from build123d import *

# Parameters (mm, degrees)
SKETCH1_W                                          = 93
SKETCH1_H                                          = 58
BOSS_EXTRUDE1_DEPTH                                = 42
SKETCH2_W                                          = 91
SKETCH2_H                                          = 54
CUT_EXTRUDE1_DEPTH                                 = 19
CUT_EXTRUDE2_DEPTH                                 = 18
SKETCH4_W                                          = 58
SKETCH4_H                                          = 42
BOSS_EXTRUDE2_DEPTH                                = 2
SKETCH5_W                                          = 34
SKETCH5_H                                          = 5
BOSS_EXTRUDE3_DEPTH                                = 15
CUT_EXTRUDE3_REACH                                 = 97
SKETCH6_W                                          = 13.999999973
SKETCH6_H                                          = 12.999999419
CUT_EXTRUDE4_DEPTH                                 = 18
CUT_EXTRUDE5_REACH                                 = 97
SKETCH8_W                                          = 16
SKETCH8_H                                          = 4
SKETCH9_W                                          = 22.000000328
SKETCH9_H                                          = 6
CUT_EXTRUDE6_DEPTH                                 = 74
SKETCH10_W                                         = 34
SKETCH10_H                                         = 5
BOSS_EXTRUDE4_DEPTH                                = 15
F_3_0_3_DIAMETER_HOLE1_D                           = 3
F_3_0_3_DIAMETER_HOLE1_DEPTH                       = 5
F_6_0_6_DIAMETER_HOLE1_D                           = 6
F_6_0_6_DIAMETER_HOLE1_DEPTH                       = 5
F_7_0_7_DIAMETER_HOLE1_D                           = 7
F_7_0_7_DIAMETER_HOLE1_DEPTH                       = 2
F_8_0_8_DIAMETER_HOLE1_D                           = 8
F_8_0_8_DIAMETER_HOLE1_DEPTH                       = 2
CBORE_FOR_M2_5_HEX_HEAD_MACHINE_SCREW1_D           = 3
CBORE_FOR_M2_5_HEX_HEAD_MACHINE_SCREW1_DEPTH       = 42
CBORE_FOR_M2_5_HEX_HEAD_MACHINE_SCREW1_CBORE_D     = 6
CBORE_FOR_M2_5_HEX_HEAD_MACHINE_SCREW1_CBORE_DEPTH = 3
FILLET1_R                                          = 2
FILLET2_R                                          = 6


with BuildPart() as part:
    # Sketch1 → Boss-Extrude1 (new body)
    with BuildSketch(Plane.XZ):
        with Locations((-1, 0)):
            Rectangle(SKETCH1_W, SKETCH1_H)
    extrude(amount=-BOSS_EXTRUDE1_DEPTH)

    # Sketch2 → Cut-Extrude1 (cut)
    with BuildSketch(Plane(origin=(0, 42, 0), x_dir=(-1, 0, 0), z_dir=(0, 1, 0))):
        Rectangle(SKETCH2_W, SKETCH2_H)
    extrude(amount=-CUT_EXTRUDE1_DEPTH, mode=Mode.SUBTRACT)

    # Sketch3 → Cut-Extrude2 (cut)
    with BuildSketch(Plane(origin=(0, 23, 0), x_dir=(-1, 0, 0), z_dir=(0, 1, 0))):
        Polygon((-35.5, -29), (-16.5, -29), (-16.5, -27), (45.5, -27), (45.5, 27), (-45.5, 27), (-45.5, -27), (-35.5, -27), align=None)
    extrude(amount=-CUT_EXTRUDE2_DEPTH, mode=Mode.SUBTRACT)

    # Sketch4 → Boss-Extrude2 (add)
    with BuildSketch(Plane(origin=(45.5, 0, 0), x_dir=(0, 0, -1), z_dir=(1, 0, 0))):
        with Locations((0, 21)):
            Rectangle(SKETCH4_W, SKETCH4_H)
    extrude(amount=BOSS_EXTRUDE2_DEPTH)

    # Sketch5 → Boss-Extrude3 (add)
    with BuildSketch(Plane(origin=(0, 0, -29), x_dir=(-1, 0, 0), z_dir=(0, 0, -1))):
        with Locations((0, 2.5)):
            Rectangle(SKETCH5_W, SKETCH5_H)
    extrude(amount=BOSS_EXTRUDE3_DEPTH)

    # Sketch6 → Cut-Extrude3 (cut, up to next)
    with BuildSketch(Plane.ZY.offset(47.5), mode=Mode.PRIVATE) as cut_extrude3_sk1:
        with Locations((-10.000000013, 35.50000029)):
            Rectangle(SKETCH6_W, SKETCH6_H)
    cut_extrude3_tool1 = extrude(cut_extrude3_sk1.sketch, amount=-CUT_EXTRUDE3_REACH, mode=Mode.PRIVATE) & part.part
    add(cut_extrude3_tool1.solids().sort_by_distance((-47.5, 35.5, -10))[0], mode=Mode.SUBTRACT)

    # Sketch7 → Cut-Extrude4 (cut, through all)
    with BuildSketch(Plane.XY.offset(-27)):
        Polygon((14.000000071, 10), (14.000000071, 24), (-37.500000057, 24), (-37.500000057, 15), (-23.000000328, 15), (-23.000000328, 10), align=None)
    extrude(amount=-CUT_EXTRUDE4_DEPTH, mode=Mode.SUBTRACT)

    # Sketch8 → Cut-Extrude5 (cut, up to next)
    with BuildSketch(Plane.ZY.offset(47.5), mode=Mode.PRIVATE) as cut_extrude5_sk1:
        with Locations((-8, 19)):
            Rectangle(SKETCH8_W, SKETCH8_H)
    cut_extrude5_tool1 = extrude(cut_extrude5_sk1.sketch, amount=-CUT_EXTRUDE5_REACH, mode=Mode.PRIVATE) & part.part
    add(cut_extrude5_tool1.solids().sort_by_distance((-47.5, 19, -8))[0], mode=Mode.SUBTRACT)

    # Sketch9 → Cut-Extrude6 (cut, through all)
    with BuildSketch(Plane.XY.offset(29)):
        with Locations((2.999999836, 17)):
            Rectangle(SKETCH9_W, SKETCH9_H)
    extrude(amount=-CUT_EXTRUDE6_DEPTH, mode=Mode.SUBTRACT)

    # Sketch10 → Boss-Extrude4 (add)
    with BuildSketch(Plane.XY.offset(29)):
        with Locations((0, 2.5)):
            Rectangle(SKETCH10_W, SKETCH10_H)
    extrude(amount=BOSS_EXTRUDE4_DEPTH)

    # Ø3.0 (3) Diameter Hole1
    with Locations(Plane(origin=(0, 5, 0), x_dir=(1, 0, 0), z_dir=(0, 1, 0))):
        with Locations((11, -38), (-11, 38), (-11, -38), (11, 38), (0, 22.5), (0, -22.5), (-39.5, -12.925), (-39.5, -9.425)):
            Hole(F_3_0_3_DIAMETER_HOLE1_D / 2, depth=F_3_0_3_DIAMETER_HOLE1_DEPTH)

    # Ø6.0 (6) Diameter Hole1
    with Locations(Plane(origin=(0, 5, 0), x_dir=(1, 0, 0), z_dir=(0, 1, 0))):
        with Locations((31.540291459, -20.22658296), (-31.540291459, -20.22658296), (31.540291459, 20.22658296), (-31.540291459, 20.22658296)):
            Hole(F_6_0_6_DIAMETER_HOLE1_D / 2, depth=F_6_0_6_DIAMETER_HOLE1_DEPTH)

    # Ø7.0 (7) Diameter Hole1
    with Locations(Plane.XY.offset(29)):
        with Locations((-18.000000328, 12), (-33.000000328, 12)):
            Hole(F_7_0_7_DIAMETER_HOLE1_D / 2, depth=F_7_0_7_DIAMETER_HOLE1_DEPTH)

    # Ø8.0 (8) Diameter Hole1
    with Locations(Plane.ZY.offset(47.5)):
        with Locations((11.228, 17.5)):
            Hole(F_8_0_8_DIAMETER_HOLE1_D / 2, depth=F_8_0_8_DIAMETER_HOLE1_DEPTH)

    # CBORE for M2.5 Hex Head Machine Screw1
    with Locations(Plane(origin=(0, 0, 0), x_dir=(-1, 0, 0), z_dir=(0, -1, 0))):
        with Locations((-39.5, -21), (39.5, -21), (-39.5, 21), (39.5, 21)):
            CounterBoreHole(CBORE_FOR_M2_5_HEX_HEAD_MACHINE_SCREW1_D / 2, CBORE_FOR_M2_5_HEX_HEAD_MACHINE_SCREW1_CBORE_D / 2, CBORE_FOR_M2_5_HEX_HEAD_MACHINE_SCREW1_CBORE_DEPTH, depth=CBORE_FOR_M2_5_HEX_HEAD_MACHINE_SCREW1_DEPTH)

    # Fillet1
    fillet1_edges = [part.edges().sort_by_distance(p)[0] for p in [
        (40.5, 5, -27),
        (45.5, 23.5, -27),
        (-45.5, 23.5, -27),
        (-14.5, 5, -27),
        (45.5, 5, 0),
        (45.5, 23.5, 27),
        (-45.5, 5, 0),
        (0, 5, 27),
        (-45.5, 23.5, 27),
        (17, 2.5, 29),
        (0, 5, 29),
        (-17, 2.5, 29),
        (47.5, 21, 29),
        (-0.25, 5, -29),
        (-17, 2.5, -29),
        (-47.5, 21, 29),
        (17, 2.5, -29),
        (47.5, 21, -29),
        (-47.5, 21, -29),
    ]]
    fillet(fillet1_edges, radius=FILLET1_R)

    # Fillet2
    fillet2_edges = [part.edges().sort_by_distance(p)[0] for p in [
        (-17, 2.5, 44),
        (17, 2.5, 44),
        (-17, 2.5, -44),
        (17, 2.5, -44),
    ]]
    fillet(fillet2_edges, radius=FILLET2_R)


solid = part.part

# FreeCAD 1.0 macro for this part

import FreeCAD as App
import Part
import Sketcher

V = App.Vector
Q = App.Units.Quantity


def edges_at(feature, points):
    """Names of the edges that pass closest to the given points."""
    edges = feature.Shape.Edges
    near = lambda p: min(range(len(edges)), key=lambda i: edges[i].distToShape(Part.Vertex(*p))[0])
    return sorted({f"Edge{near(p) + 1}" for p in points})

doc = App.newDocument("Part")
params = doc.addObject("Spreadsheet::Sheet", "Params")
for row, (alias, value) in enumerate([
    ("sketch1_width", "93 mm"),
    ("sketch1_height", "58 mm"),
    ("pad1_length", "42 mm"),
    ("sketch2_width", "91 mm"),
    ("sketch2_height", "54 mm"),
    ("pocket1_length", "19 mm"),
    ("sketch3_width", "19 mm"),
    ("sketch3_width2", "62 mm"),
    ("sketch3_width3", "91 mm"),
    ("sketch3_height", "2 mm"),
    ("sketch3_height2", "54 mm"),
    ("pocket2_length", "18 mm"),
    ("sketch4_width", "42 mm"),
    ("sketch4_height", "58 mm"),
    ("pad2_length", "2 mm"),
    ("sketch5_width", "34 mm"),
    ("sketch5_height", "5 mm"),
    ("pad3_length", "15 mm"),
    ("sketch6_width", "12.999999 mm"),
    ("sketch6_height", "14 mm"),
    ("sketch7_width", "37 mm"),
    ("sketch7_height", "14 mm"),
    ("sketch7_height2", "9 mm"),
    ("sketch7_width2", "51.5 mm"),
    ("sketch8_width", "4 mm"),
    ("sketch8_height", "16 mm"),
    ("sketch9_width", "22 mm"),
    ("sketch9_height", "6 mm"),
    ("sketch10_width", "34 mm"),
    ("sketch10_height", "5 mm"),
    ("pad4_length", "15 mm"),
    ("sketch11_diameter", "3 mm"),
    ("hole_diameter", "3 mm"),
    ("hole_depth", "5 mm"),
    ("sketch12_diameter", "6 mm"),
    ("hole2_diameter", "6 mm"),
    ("hole2_depth", "5 mm"),
    ("sketch13_diameter", "7 mm"),
    ("hole3_diameter", "7 mm"),
    ("hole3_depth", "2 mm"),
    ("sketch14_diameter", "8 mm"),
    ("hole4_diameter", "8 mm"),
    ("hole4_depth", "2 mm"),
    ("sketch15_diameter", "3 mm"),
    ("hole5_diameter", "3 mm"),
    ("hole5_depth", "42 mm"),
    ("hole5_cbore_diameter", "6 mm"),
    ("hole5_cbore_depth", "3 mm"),
    ("fillet_radius", "2 mm"),
    ("fillet2_radius", "6 mm"),
], start=1):
    params.set(f"A{row}", alias)
    params.set(f"B{row}", "=" + value)
    params.setAlias(f"B{row}", alias)

body = doc.addObject("PartDesign::Body", "Body")

sketch1 = body.newObject("Sketcher::SketchObject", "Sketch")
sketch1.AttachmentSupport = (doc.getObject("XZ_Plane"), [""])
sketch1.MapMode = "FlatFace"
sketch1.addGeometry(Part.LineSegment(V(-48, 29, 0), V(-48, -29, 0)), False)
sketch1.addGeometry(Part.LineSegment(V(-48, -29, 0), V(46, -29, 0)), False)
sketch1.addGeometry(Part.LineSegment(V(46, -29, 0), V(46, 29, 0)), False)
sketch1.addGeometry(Part.LineSegment(V(46, 29, 0), V(-48, 29, 0)), False)
sketch1.addConstraint(Sketcher.Constraint("Coincident", 0, 2, 1, 1))
sketch1.addConstraint(Sketcher.Constraint("Coincident", 1, 2, 2, 1))
sketch1.addConstraint(Sketcher.Constraint("Coincident", 2, 2, 3, 1))
sketch1.addConstraint(Sketcher.Constraint("Coincident", 3, 2, 0, 1))
sketch1.addConstraint(Sketcher.Constraint("Vertical", 0))
sketch1.addConstraint(Sketcher.Constraint("Horizontal", 1))
sketch1.addConstraint(Sketcher.Constraint("Vertical", 2))
sketch1.addConstraint(Sketcher.Constraint("Horizontal", 3))
sketch1.addConstraint(Sketcher.Constraint("DistanceX", 1, 1, 1, 2, Q("93 mm")))
sketch1.addConstraint(Sketcher.Constraint("DistanceY", 0, 2, 0, 1, Q("58 mm")))
sketch1.addConstraint(Sketcher.Constraint("DistanceY", 0, 2, -1, 1, Q("29 mm")))
sketch1.addConstraint(Sketcher.Constraint("DistanceX", 0, 2, -1, 1, Q("47.5 mm")))
sketch1.setExpression("Constraints[8]", "Params.sketch1_width")
sketch1.setExpression("Constraints[9]", "Params.sketch1_height")
pad1 = body.newObject("PartDesign::Pad", "Pad")
pad1.Profile = sketch1
pad1.setExpression("Length", "Params.pad1_length")
pad1.Reversed = True

sketch2 = body.newObject("Sketcher::SketchObject", "Sketch001")
sketch2.AttachmentSupport = (doc.getObject("XZ_Plane"), [""])
sketch2.MapMode = "FlatFace"
sketch2.AttachmentOffset = App.Placement(V(0, 0, -42), App.Rotation())
sketch2.addGeometry(Part.LineSegment(V(46, 27, 0), V(46, -27, 0)), False)
sketch2.addGeometry(Part.LineSegment(V(46, -27, 0), V(-46, -27, 0)), False)
sketch2.addGeometry(Part.LineSegment(V(-46, -27, 0), V(-46, 27, 0)), False)
sketch2.addGeometry(Part.LineSegment(V(-46, 27, 0), V(46, 27, 0)), False)
sketch2.addConstraint(Sketcher.Constraint("Coincident", 0, 2, 1, 1))
sketch2.addConstraint(Sketcher.Constraint("Coincident", 1, 2, 2, 1))
sketch2.addConstraint(Sketcher.Constraint("Coincident", 2, 2, 3, 1))
sketch2.addConstraint(Sketcher.Constraint("Coincident", 3, 2, 0, 1))
sketch2.addConstraint(Sketcher.Constraint("Vertical", 0))
sketch2.addConstraint(Sketcher.Constraint("Horizontal", 1))
sketch2.addConstraint(Sketcher.Constraint("Vertical", 2))
sketch2.addConstraint(Sketcher.Constraint("Horizontal", 3))
sketch2.addConstraint(Sketcher.Constraint("Symmetric", 0, 2, 2, 2, -1, 1))
sketch2.addConstraint(Sketcher.Constraint("DistanceX", 1, 2, 1, 1, Q("91 mm")))
sketch2.addConstraint(Sketcher.Constraint("DistanceY", 0, 2, 0, 1, Q("54 mm")))
sketch2.setExpression("Constraints[9]", "Params.sketch2_width")
sketch2.setExpression("Constraints[10]", "Params.sketch2_height")
pocket1 = body.newObject("PartDesign::Pocket", "Pocket")
pocket1.Profile = sketch2
pocket1.setExpression("Length", "Params.pocket1_length")
pocket1.Reversed = True

sketch3 = body.newObject("Sketcher::SketchObject", "Sketch002")
sketch3.AttachmentSupport = (doc.getObject("XZ_Plane"), [""])
sketch3.MapMode = "FlatFace"
sketch3.AttachmentOffset = App.Placement(V(0, 0, -23), App.Rotation())
sketch3.addGeometry(Part.LineSegment(V(35.5, -29, 0), V(16.5, -29, 0)), False)
sketch3.addGeometry(Part.LineSegment(V(16.5, -29, 0), V(16.5, -27, 0)), False)
sketch3.addGeometry(Part.LineSegment(V(16.5, -27, 0), V(-45.5, -27, 0)), False)
sketch3.addGeometry(Part.LineSegment(V(-45.5, -27, 0), V(-45.5, 27, 0)), False)
sketch3.addGeometry(Part.LineSegment(V(-45.5, 27, 0), V(45.5, 27, 0)), False)
sketch3.addGeometry(Part.LineSegment(V(45.5, 27, 0), V(45.5, -27, 0)), False)
sketch3.addGeometry(Part.LineSegment(V(45.5, -27, 0), V(35.5, -27, 0)), False)
sketch3.addGeometry(Part.LineSegment(V(35.5, -27, 0), V(35.5, -29, 0)), False)
sketch3.addConstraint(Sketcher.Constraint("Coincident", 0, 2, 1, 1))
sketch3.addConstraint(Sketcher.Constraint("Coincident", 1, 2, 2, 1))
sketch3.addConstraint(Sketcher.Constraint("Coincident", 2, 2, 3, 1))
sketch3.addConstraint(Sketcher.Constraint("Coincident", 3, 2, 4, 1))
sketch3.addConstraint(Sketcher.Constraint("Coincident", 4, 2, 5, 1))
sketch3.addConstraint(Sketcher.Constraint("Coincident", 5, 2, 6, 1))
sketch3.addConstraint(Sketcher.Constraint("Coincident", 6, 2, 7, 1))
sketch3.addConstraint(Sketcher.Constraint("Coincident", 7, 2, 0, 1))
sketch3.addConstraint(Sketcher.Constraint("Horizontal", 0))
sketch3.addConstraint(Sketcher.Constraint("Vertical", 1))
sketch3.addConstraint(Sketcher.Constraint("Horizontal", 2))
sketch3.addConstraint(Sketcher.Constraint("Vertical", 3))
sketch3.addConstraint(Sketcher.Constraint("Horizontal", 4))
sketch3.addConstraint(Sketcher.Constraint("Vertical", 5))
sketch3.addConstraint(Sketcher.Constraint("Horizontal", 6))
sketch3.addConstraint(Sketcher.Constraint("Vertical", 7))
sketch3.addConstraint(Sketcher.Constraint("Symmetric", 2, 2, 4, 2, -1, 1))
sketch3.addConstraint(Sketcher.Constraint("Horizontal", 2, 2, 5, 2))
sketch3.addConstraint(Sketcher.Constraint("DistanceX", 0, 2, 0, 1, Q("19 mm")))
sketch3.addConstraint(Sketcher.Constraint("DistanceX", 2, 2, 2, 1, Q("62 mm")))
sketch3.addConstraint(Sketcher.Constraint("DistanceX", 4, 1, 4, 2, Q("91 mm")))
sketch3.addConstraint(Sketcher.Constraint("DistanceY", 1, 1, 1, 2, Q("2 mm")))
sketch3.addConstraint(Sketcher.Constraint("DistanceY", 3, 1, 3, 2, Q("54 mm")))
sketch3.setExpression("Constraints[18]", "Params.sketch3_width")
sketch3.setExpression("Constraints[19]", "Params.sketch3_width2")
sketch3.setExpression("Constraints[20]", "Params.sketch3_width3")
sketch3.setExpression("Constraints[21]", "Params.sketch3_height")
sketch3.setExpression("Constraints[22]", "Params.sketch3_height2")
pocket2 = body.newObject("PartDesign::Pocket", "Pocket001")
pocket2.Profile = sketch3
pocket2.setExpression("Length", "Params.pocket2_length")
pocket2.Reversed = True

sketch4 = body.newObject("Sketcher::SketchObject", "Sketch003")
sketch4.AttachmentSupport = (doc.getObject("YZ_Plane"), [""])
sketch4.MapMode = "FlatFace"
sketch4.AttachmentOffset = App.Placement(V(0, 0, 45.5), App.Rotation())
sketch4.addGeometry(Part.LineSegment(V(42, 29, 0), V(0, 29, 0)), False)
sketch4.addGeometry(Part.LineSegment(V(0, 29, 0), V(0, -29, 0)), False)
sketch4.addGeometry(Part.LineSegment(V(0, -29, 0), V(42, -29, 0)), False)
sketch4.addGeometry(Part.LineSegment(V(42, -29, 0), V(42, 29, 0)), False)
sketch4.addConstraint(Sketcher.Constraint("Coincident", 0, 2, 1, 1))
sketch4.addConstraint(Sketcher.Constraint("Coincident", 1, 2, 2, 1))
sketch4.addConstraint(Sketcher.Constraint("Coincident", 2, 2, 3, 1))
sketch4.addConstraint(Sketcher.Constraint("Coincident", 3, 2, 0, 1))
sketch4.addConstraint(Sketcher.Constraint("Horizontal", 0))
sketch4.addConstraint(Sketcher.Constraint("Vertical", 1))
sketch4.addConstraint(Sketcher.Constraint("Horizontal", 2))
sketch4.addConstraint(Sketcher.Constraint("Vertical", 3))
sketch4.addConstraint(Sketcher.Constraint("Symmetric", 0, 2, 1, 2, -1, 1))
sketch4.addConstraint(Sketcher.Constraint("DistanceX", 0, 2, 0, 1, Q("42 mm")))
sketch4.addConstraint(Sketcher.Constraint("DistanceY", 1, 2, 1, 1, Q("58 mm")))
sketch4.setExpression("Constraints[9]", "Params.sketch4_width")
sketch4.setExpression("Constraints[10]", "Params.sketch4_height")
pad2 = body.newObject("PartDesign::Pad", "Pad001")
pad2.Profile = sketch4
pad2.setExpression("Length", "Params.pad2_length")

sketch5 = body.newObject("Sketcher::SketchObject", "Sketch004")
sketch5.AttachmentSupport = (doc.getObject("XY_Plane"), [""])
sketch5.MapMode = "FlatFace"
sketch5.AttachmentOffset = App.Placement(V(0, 0, -29), App.Rotation())
sketch5.addGeometry(Part.LineSegment(V(17, 5, 0), V(17, 0, 0)), False)
sketch5.addGeometry(Part.LineSegment(V(17, 0, 0), V(-17, 0, 0)), False)
sketch5.addGeometry(Part.LineSegment(V(-17, 0, 0), V(-17, 5, 0)), False)
sketch5.addGeometry(Part.LineSegment(V(-17, 5, 0), V(17, 5, 0)), False)
sketch5.addConstraint(Sketcher.Constraint("Coincident", 0, 2, 1, 1))
sketch5.addConstraint(Sketcher.Constraint("Coincident", 1, 2, 2, 1))
sketch5.addConstraint(Sketcher.Constraint("Coincident", 2, 2, 3, 1))
sketch5.addConstraint(Sketcher.Constraint("Coincident", 3, 2, 0, 1))
sketch5.addConstraint(Sketcher.Constraint("Vertical", 0))
sketch5.addConstraint(Sketcher.Constraint("Horizontal", 1))
sketch5.addConstraint(Sketcher.Constraint("Vertical", 2))
sketch5.addConstraint(Sketcher.Constraint("Horizontal", 3))
sketch5.addConstraint(Sketcher.Constraint("Symmetric", 0, 2, 1, 2, -1, 1))
sketch5.addConstraint(Sketcher.Constraint("DistanceX", 1, 2, 1, 1, Q("34 mm")))
sketch5.addConstraint(Sketcher.Constraint("DistanceY", 0, 2, 0, 1, Q("5 mm")))
sketch5.setExpression("Constraints[9]", "Params.sketch5_width")
sketch5.setExpression("Constraints[10]", "Params.sketch5_height")
pad3 = body.newObject("PartDesign::Pad", "Pad002")
pad3.Profile = sketch5
pad3.setExpression("Length", "Params.pad3_length")
pad3.Reversed = True

sketch6 = body.newObject("Sketcher::SketchObject", "Sketch005")
sketch6.AttachmentSupport = (doc.getObject("YZ_Plane"), [""])
sketch6.MapMode = "FlatFace"
sketch6.AttachmentOffset = App.Placement(V(0, 0, -47.5), App.Rotation())
sketch6.addGeometry(Part.LineSegment(V(42, -17, 0), V(29, -17, 0)), False)
sketch6.addGeometry(Part.LineSegment(V(29, -17, 0), V(29, -3, 0)), False)
sketch6.addGeometry(Part.LineSegment(V(29, -3, 0), V(42, -3, 0)), False)
sketch6.addGeometry(Part.LineSegment(V(42, -3, 0), V(42, -17, 0)), False)
sketch6.addConstraint(Sketcher.Constraint("Coincident", 0, 2, 1, 1))
sketch6.addConstraint(Sketcher.Constraint("Coincident", 1, 2, 2, 1))
sketch6.addConstraint(Sketcher.Constraint("Coincident", 2, 2, 3, 1))
sketch6.addConstraint(Sketcher.Constraint("Coincident", 3, 2, 0, 1))
sketch6.addConstraint(Sketcher.Constraint("Horizontal", 0))
sketch6.addConstraint(Sketcher.Constraint("Vertical", 1))
sketch6.addConstraint(Sketcher.Constraint("Horizontal", 2))
sketch6.addConstraint(Sketcher.Constraint("Vertical", 3))
sketch6.addConstraint(Sketcher.Constraint("DistanceX", 0, 2, 0, 1, Q("12.999999 mm")))
sketch6.addConstraint(Sketcher.Constraint("DistanceY", 1, 1, 1, 2, Q("14 mm")))
sketch6.addConstraint(Sketcher.Constraint("DistanceX", -1, 1, 0, 2, Q("29.000001 mm")))
sketch6.addConstraint(Sketcher.Constraint("DistanceY", 0, 2, -1, 1, Q("17 mm")))
sketch6.setExpression("Constraints[8]", "Params.sketch6_width")
sketch6.setExpression("Constraints[9]", "Params.sketch6_height")
pocket3 = body.newObject("PartDesign::Pocket", "Pocket002")
pocket3.Profile = sketch6
pocket3.Type = "UpToFirst"
pocket3.Reversed = True

sketch7 = body.newObject("Sketcher::SketchObject", "Sketch006")
sketch7.AttachmentSupport = (doc.getObject("XY_Plane"), [""])
sketch7.MapMode = "FlatFace"
sketch7.AttachmentOffset = App.Placement(V(0, 0, -27), App.Rotation())
sketch7.addGeometry(Part.LineSegment(V(14, 10, 0), V(14, 24, 0)), False)
sketch7.addGeometry(Part.LineSegment(V(14, 24, 0), V(-38, 24, 0)), False)
sketch7.addGeometry(Part.LineSegment(V(-38, 24, 0), V(-38, 15, 0)), False)
sketch7.addGeometry(Part.LineSegment(V(-38, 15, 0), V(-23, 15, 0)), False)
sketch7.addGeometry(Part.LineSegment(V(-23, 15, 0), V(-23, 10, 0)), False)
sketch7.addGeometry(Part.LineSegment(V(-23, 10, 0), V(14, 10, 0)), False)
sketch7.addConstraint(Sketcher.Constraint("Coincident", 0, 2, 1, 1))
sketch7.addConstraint(Sketcher.Constraint("Coincident", 1, 2, 2, 1))
sketch7.addConstraint(Sketcher.Constraint("Coincident", 2, 2, 3, 1))
sketch7.addConstraint(Sketcher.Constraint("Coincident", 3, 2, 4, 1))
sketch7.addConstraint(Sketcher.Constraint("Coincident", 4, 2, 5, 1))
sketch7.addConstraint(Sketcher.Constraint("Coincident", 5, 2, 0, 1))
sketch7.addConstraint(Sketcher.Constraint("Vertical", 0))
sketch7.addConstraint(Sketcher.Constraint("Horizontal", 1))
sketch7.addConstraint(Sketcher.Constraint("Vertical", 2))
sketch7.addConstraint(Sketcher.Constraint("Horizontal", 3))
sketch7.addConstraint(Sketcher.Constraint("Vertical", 4))
sketch7.addConstraint(Sketcher.Constraint("Horizontal", 5))
sketch7.addConstraint(Sketcher.Constraint("DistanceX", 5, 1, 5, 2, Q("37 mm")))
sketch7.addConstraint(Sketcher.Constraint("DistanceY", 0, 1, 0, 2, Q("14 mm")))
sketch7.addConstraint(Sketcher.Constraint("DistanceY", 2, 2, 2, 1, Q("9 mm")))
sketch7.addConstraint(Sketcher.Constraint("DistanceX", 1, 2, 1, 1, Q("51.5 mm")))
sketch7.addConstraint(Sketcher.Constraint("DistanceX", -1, 1, 0, 2, Q("14 mm")))
sketch7.addConstraint(Sketcher.Constraint("DistanceY", -1, 1, 0, 2, Q("24 mm")))
sketch7.setExpression("Constraints[12]", "Params.sketch7_width")
sketch7.setExpression("Constraints[13]", "Params.sketch7_height")
sketch7.setExpression("Constraints[14]", "Params.sketch7_height2")
sketch7.setExpression("Constraints[15]", "Params.sketch7_width2")
pocket4 = body.newObject("PartDesign::Pocket", "Pocket003")
pocket4.Profile = sketch7
pocket4.Type = "ThroughAll"

sketch8 = body.newObject("Sketcher::SketchObject", "Sketch007")
sketch8.AttachmentSupport = (doc.getObject("YZ_Plane"), [""])
sketch8.MapMode = "FlatFace"
sketch8.AttachmentOffset = App.Placement(V(0, 0, -47.5), App.Rotation())
sketch8.addGeometry(Part.LineSegment(V(21, -16, 0), V(17, -16, 0)), False)
sketch8.addGeometry(Part.LineSegment(V(17, -16, 0), V(17, 0, 0)), False)
sketch8.addGeometry(Part.LineSegment(V(17, 0, 0), V(21, 0, 0)), False)
sketch8.addGeometry(Part.LineSegment(V(21, 0, 0), V(21, -16, 0)), False)
sketch8.addConstraint(Sketcher.Constraint("Coincident", 0, 2, 1, 1))
sketch8.addConstraint(Sketcher.Constraint("Coincident", 1, 2, 2, 1))
sketch8.addConstraint(Sketcher.Constraint("Coincident", 2, 2, 3, 1))
sketch8.addConstraint(Sketcher.Constraint("Coincident", 3, 2, 0, 1))
sketch8.addConstraint(Sketcher.Constraint("Horizontal", 0))
sketch8.addConstraint(Sketcher.Constraint("Vertical", 1))
sketch8.addConstraint(Sketcher.Constraint("Horizontal", 2))
sketch8.addConstraint(Sketcher.Constraint("Vertical", 3))
sketch8.addConstraint(Sketcher.Constraint("PointOnObject", 1, 2, -1))
sketch8.addConstraint(Sketcher.Constraint("DistanceX", 0, 2, 0, 1, Q("4 mm")))
sketch8.addConstraint(Sketcher.Constraint("DistanceY", 1, 1, 1, 2, Q("16 mm")))
sketch8.addConstraint(Sketcher.Constraint("DistanceX", -1, 1, 0, 2, Q("17 mm")))
sketch8.setExpression("Constraints[9]", "Params.sketch8_width")
sketch8.setExpression("Constraints[10]", "Params.sketch8_height")
pocket5 = body.newObject("PartDesign::Pocket", "Pocket004")
pocket5.Profile = sketch8
pocket5.Type = "UpToFirst"
pocket5.Reversed = True

sketch9 = body.newObject("Sketcher::SketchObject", "Sketch008")
sketch9.AttachmentSupport = (doc.getObject("XY_Plane"), [""])
sketch9.MapMode = "FlatFace"
sketch9.AttachmentOffset = App.Placement(V(0, 0, 29), App.Rotation())
sketch9.addGeometry(Part.LineSegment(V(-8, 20, 0), V(-8, 14, 0)), False)
sketch9.addGeometry(Part.LineSegment(V(-8, 14, 0), V(14, 14, 0)), False)
sketch9.addGeometry(Part.LineSegment(V(14, 14, 0), V(14, 20, 0)), False)
sketch9.addGeometry(Part.LineSegment(V(14, 20, 0), V(-8, 20, 0)), False)
sketch9.addConstraint(Sketcher.Constraint("Coincident", 0, 2, 1, 1))
sketch9.addConstraint(Sketcher.Constraint("Coincident", 1, 2, 2, 1))
sketch9.addConstraint(Sketcher.Constraint("Coincident", 2, 2, 3, 1))
sketch9.addConstraint(Sketcher.Constraint("Coincident", 3, 2, 0, 1))
sketch9.addConstraint(Sketcher.Constraint("Vertical", 0))
sketch9.addConstraint(Sketcher.Constraint("Horizontal", 1))
sketch9.addConstraint(Sketcher.Constraint("Vertical", 2))
sketch9.addConstraint(Sketcher.Constraint("Horizontal", 3))
sketch9.addConstraint(Sketcher.Constraint("DistanceX", 1, 1, 1, 2, Q("22 mm")))
sketch9.addConstraint(Sketcher.Constraint("DistanceY", 0, 2, 0, 1, Q("6 mm")))
sketch9.addConstraint(Sketcher.Constraint("DistanceX", 0, 2, -1, 1, Q("8 mm")))
sketch9.addConstraint(Sketcher.Constraint("DistanceY", -1, 1, 0, 2, Q("14 mm")))
sketch9.setExpression("Constraints[8]", "Params.sketch9_width")
sketch9.setExpression("Constraints[9]", "Params.sketch9_height")
pocket6 = body.newObject("PartDesign::Pocket", "Pocket005")
pocket6.Profile = sketch9
pocket6.Type = "ThroughAll"

sketch10 = body.newObject("Sketcher::SketchObject", "Sketch009")
sketch10.AttachmentSupport = (doc.getObject("XY_Plane"), [""])
sketch10.MapMode = "FlatFace"
sketch10.AttachmentOffset = App.Placement(V(0, 0, 29), App.Rotation())
sketch10.addGeometry(Part.LineSegment(V(-17, 5, 0), V(-17, 0, 0)), False)
sketch10.addGeometry(Part.LineSegment(V(-17, 0, 0), V(17, 0, 0)), False)
sketch10.addGeometry(Part.LineSegment(V(17, 0, 0), V(17, 5, 0)), False)
sketch10.addGeometry(Part.LineSegment(V(17, 5, 0), V(-17, 5, 0)), False)
sketch10.addConstraint(Sketcher.Constraint("Coincident", 0, 2, 1, 1))
sketch10.addConstraint(Sketcher.Constraint("Coincident", 1, 2, 2, 1))
sketch10.addConstraint(Sketcher.Constraint("Coincident", 2, 2, 3, 1))
sketch10.addConstraint(Sketcher.Constraint("Coincident", 3, 2, 0, 1))
sketch10.addConstraint(Sketcher.Constraint("Vertical", 0))
sketch10.addConstraint(Sketcher.Constraint("Horizontal", 1))
sketch10.addConstraint(Sketcher.Constraint("Vertical", 2))
sketch10.addConstraint(Sketcher.Constraint("Horizontal", 3))
sketch10.addConstraint(Sketcher.Constraint("Symmetric", 0, 2, 1, 2, -1, 1))
sketch10.addConstraint(Sketcher.Constraint("DistanceX", 1, 1, 1, 2, Q("34 mm")))
sketch10.addConstraint(Sketcher.Constraint("DistanceY", 0, 2, 0, 1, Q("5 mm")))
sketch10.setExpression("Constraints[9]", "Params.sketch10_width")
sketch10.setExpression("Constraints[10]", "Params.sketch10_height")
pad4 = body.newObject("PartDesign::Pad", "Pad003")
pad4.Profile = sketch10
pad4.setExpression("Length", "Params.pad4_length")

sketch11 = body.newObject("Sketcher::SketchObject", "Sketch010")
sketch11.AttachmentSupport = (doc.getObject("XZ_Plane"), [""])
sketch11.MapMode = "FlatFace"
sketch11.AttachmentOffset = App.Placement(V(0, 0, -5), App.Rotation())
sketch11.addGeometry(Part.Circle(V(11, 38, 0), V(0, 0, 1), 1.5), False)
sketch11.addGeometry(Part.Circle(V(-11, -38, 0), V(0, 0, 1), 1.5), False)
sketch11.addGeometry(Part.Circle(V(-11, 38, 0), V(0, 0, 1), 1.5), False)
sketch11.addGeometry(Part.Circle(V(11, -38, 0), V(0, 0, 1), 1.5), False)
sketch11.addGeometry(Part.Circle(V(0, -22.5, 0), V(0, 0, 1), 1.5), False)
sketch11.addGeometry(Part.Circle(V(0, 22.5, 0), V(0, 0, 1), 1.5), False)
sketch11.addGeometry(Part.Circle(V(-39.5, 12.9, 0), V(0, 0, 1), 1.5), False)
sketch11.addGeometry(Part.Circle(V(-39.5, 9.4, 0), V(0, 0, 1), 1.5), False)
sketch11.addConstraint(Sketcher.Constraint("Equal", 0, 1))
sketch11.addConstraint(Sketcher.Constraint("Equal", 1, 2))
sketch11.addConstraint(Sketcher.Constraint("Equal", 2, 3))
sketch11.addConstraint(Sketcher.Constraint("Equal", 3, 4))
sketch11.addConstraint(Sketcher.Constraint("Equal", 4, 5))
sketch11.addConstraint(Sketcher.Constraint("Equal", 5, 6))
sketch11.addConstraint(Sketcher.Constraint("Equal", 6, 7))
sketch11.addConstraint(Sketcher.Constraint("Symmetric", 0, 3, 1, 3, -1, 1))
sketch11.addConstraint(Sketcher.Constraint("Symmetric", 2, 3, 3, 3, -1, 1))
sketch11.addConstraint(Sketcher.Constraint("Symmetric", 4, 3, 5, 3, -1, 1))
sketch11.addConstraint(Sketcher.Constraint("Symmetric", 0, 3, 2, 3, -2))
sketch11.addConstraint(Sketcher.Constraint("PointOnObject", 4, 3, -2))
sketch11.addConstraint(Sketcher.Constraint("Vertical", 6, 3, 7, 3))
sketch11.addConstraint(Sketcher.Constraint("Diameter", 0, Q("3 mm")))
sketch11.addConstraint(Sketcher.Constraint("DistanceX", -1, 1, 0, 3, Q("11 mm")))
sketch11.addConstraint(Sketcher.Constraint("DistanceY", -1, 1, 0, 3, Q("38 mm")))
sketch11.addConstraint(Sketcher.Constraint("DistanceY", 4, 3, 5, 3, Q("45 mm")))
sketch11.addConstraint(Sketcher.Constraint("DistanceX", 6, 3, -1, 1, Q("39.5 mm")))
sketch11.addConstraint(Sketcher.Constraint("DistanceY", 7, 3, 6, 3, Q("3.5 mm")))
sketch11.addConstraint(Sketcher.Constraint("DistanceY", -1, 1, 6, 3, Q("12.925 mm")))
sketch11.setExpression("Constraints[13]", "Params.sketch11_diameter")
doc.recompute()
hole = body.newObject("PartDesign::Hole", "Hole")
hole.Profile = sketch11
hole.ThreadType = "None"
hole.setExpression("Diameter", "Params.hole_diameter")
hole.DepthType = "Dimension"
hole.setExpression("Depth", "Params.hole_depth")
hole.DrillPoint = "Flat"
hole.Reversed = True

sketch12 = body.newObject("Sketcher::SketchObject", "Sketch011")
sketch12.AttachmentSupport = (doc.getObject("XZ_Plane"), [""])
sketch12.MapMode = "FlatFace"
sketch12.AttachmentOffset = App.Placement(V(0, 0, -5), App.Rotation())
sketch12.addGeometry(Part.Circle(V(31.5, 20.2, 0), V(0, 0, 1), 3), False)
sketch12.addGeometry(Part.Circle(V(-31.5, 20.2, 0), V(0, 0, 1), 3), False)
sketch12.addGeometry(Part.Circle(V(31.5, -20.2, 0), V(0, 0, 1), 3), False)
sketch12.addGeometry(Part.Circle(V(-31.5, -20.2, 0), V(0, 0, 1), 3), False)
sketch12.addConstraint(Sketcher.Constraint("Equal", 0, 1))
sketch12.addConstraint(Sketcher.Constraint("Equal", 1, 2))
sketch12.addConstraint(Sketcher.Constraint("Equal", 2, 3))
sketch12.addConstraint(Sketcher.Constraint("Symmetric", 1, 3, 2, 3, -1, 1))
sketch12.addConstraint(Sketcher.Constraint("Symmetric", 0, 3, 3, 3, -1, 1))
sketch12.addConstraint(Sketcher.Constraint("Symmetric", 0, 3, 1, 3, -2))
sketch12.addConstraint(Sketcher.Constraint("Diameter", 0, Q("6 mm")))
sketch12.addConstraint(Sketcher.Constraint("DistanceX", -1, 1, 0, 3, Q("31.540291 mm")))
sketch12.addConstraint(Sketcher.Constraint("DistanceY", -1, 1, 0, 3, Q("20.226583 mm")))
sketch12.setExpression("Constraints[6]", "Params.sketch12_diameter")
doc.recompute()
hole2 = body.newObject("PartDesign::Hole", "Hole001")
hole2.Profile = sketch12
hole2.ThreadType = "None"
hole2.setExpression("Diameter", "Params.hole2_diameter")
hole2.DepthType = "Dimension"
hole2.setExpression("Depth", "Params.hole2_depth")
hole2.DrillPoint = "Flat"
hole2.Reversed = True

sketch13 = body.newObject("Sketcher::SketchObject", "Sketch012")
sketch13.AttachmentSupport = (doc.getObject("XY_Plane"), [""])
sketch13.MapMode = "FlatFace"
sketch13.AttachmentOffset = App.Placement(V(0, 0, 29), App.Rotation())
sketch13.addGeometry(Part.Circle(V(-18, 12, 0), V(0, 0, 1), 3.5), False)
sketch13.addGeometry(Part.Circle(V(-33, 12, 0), V(0, 0, 1), 3.5), False)
sketch13.addConstraint(Sketcher.Constraint("Equal", 0, 1))
sketch13.addConstraint(Sketcher.Constraint("Horizontal", 0, 3, 1, 3))
sketch13.addConstraint(Sketcher.Constraint("Diameter", 0, Q("7 mm")))
sketch13.addConstraint(Sketcher.Constraint("DistanceX", 0, 3, -1, 1, Q("18 mm")))
sketch13.addConstraint(Sketcher.Constraint("DistanceY", -1, 1, 0, 3, Q("12 mm")))
sketch13.addConstraint(Sketcher.Constraint("DistanceX", 1, 3, -1, 1, Q("33 mm")))
sketch13.setExpression("Constraints[2]", "Params.sketch13_diameter")
doc.recompute()
hole3 = body.newObject("PartDesign::Hole", "Hole002")
hole3.Profile = sketch13
hole3.ThreadType = "None"
hole3.setExpression("Diameter", "Params.hole3_diameter")
hole3.DepthType = "Dimension"
hole3.setExpression("Depth", "Params.hole3_depth")
hole3.DrillPoint = "Flat"

sketch14 = body.newObject("Sketcher::SketchObject", "Sketch013")
sketch14.AttachmentSupport = (doc.getObject("YZ_Plane"), [""])
sketch14.MapMode = "FlatFace"
sketch14.AttachmentOffset = App.Placement(V(0, 0, -47.5), App.Rotation())
sketch14.addGeometry(Part.Circle(V(17.5, 11.2, 0), V(0, 0, 1), 4), False)
sketch14.addConstraint(Sketcher.Constraint("Diameter", 0, Q("8 mm")))
sketch14.addConstraint(Sketcher.Constraint("DistanceX", -1, 1, 0, 3, Q("17.5 mm")))
sketch14.addConstraint(Sketcher.Constraint("DistanceY", -1, 1, 0, 3, Q("11.228 mm")))
sketch14.setExpression("Constraints[0]", "Params.sketch14_diameter")
doc.recompute()
hole4 = body.newObject("PartDesign::Hole", "Hole003")
hole4.Profile = sketch14
hole4.ThreadType = "None"
hole4.setExpression("Diameter", "Params.hole4_diameter")
hole4.DepthType = "Dimension"
hole4.setExpression("Depth", "Params.hole4_depth")
hole4.DrillPoint = "Flat"
hole4.Reversed = True

sketch15 = body.newObject("Sketcher::SketchObject", "Sketch014")
sketch15.AttachmentSupport = (doc.getObject("XZ_Plane"), [""])
sketch15.MapMode = "FlatFace"
sketch15.addGeometry(Part.Circle(V(39.5, 21, 0), V(0, 0, 1), 1.5), False)
sketch15.addGeometry(Part.Circle(V(-39.5, 21, 0), V(0, 0, 1), 1.5), False)
sketch15.addGeometry(Part.Circle(V(39.5, -21, 0), V(0, 0, 1), 1.5), False)
sketch15.addGeometry(Part.Circle(V(-39.5, -21, 0), V(0, 0, 1), 1.5), False)
sketch15.addConstraint(Sketcher.Constraint("Equal", 0, 1))
sketch15.addConstraint(Sketcher.Constraint("Equal", 1, 2))
sketch15.addConstraint(Sketcher.Constraint("Equal", 2, 3))
sketch15.addConstraint(Sketcher.Constraint("Symmetric", 1, 3, 2, 3, -1, 1))
sketch15.addConstraint(Sketcher.Constraint("Symmetric", 0, 3, 3, 3, -1, 1))
sketch15.addConstraint(Sketcher.Constraint("Symmetric", 0, 3, 1, 3, -2))
sketch15.addConstraint(Sketcher.Constraint("Diameter", 0, Q("3 mm")))
sketch15.addConstraint(Sketcher.Constraint("DistanceY", -1, 1, 0, 3, Q("21 mm")))
sketch15.addConstraint(Sketcher.Constraint("DistanceX", 1, 3, 0, 3, Q("79 mm")))
sketch15.setExpression("Constraints[6]", "Params.sketch15_diameter")
doc.recompute()
hole5 = body.newObject("PartDesign::Hole", "Hole004")
hole5.Profile = sketch15
hole5.ThreadType = "None"
hole5.setExpression("Diameter", "Params.hole5_diameter")
hole5.DepthType = "Dimension"
hole5.setExpression("Depth", "Params.hole5_depth")
hole5.DrillPoint = "Flat"
hole5.HoleCutType = "Counterbore"
hole5.setExpression("HoleCutDiameter", "Params.hole5_cbore_diameter")
hole5.setExpression("HoleCutDepth", "Params.hole5_cbore_depth")
doc.recompute()

fillet = body.newObject("PartDesign::Fillet", "Fillet")
fillet.Base = (hole5, edges_at(hole5, [
    (40.5, 5, -27),
    (45.5, 23.5, -27),
    (-45.5, 23.5, -27),
    (-14.5, 5, -27),
    (45.5, 5, 0),
    (45.5, 23.5, 27),
    (-45.5, 5, 0),
    (0, 5, 27),
    (-45.5, 23.5, 27),
    (17, 2.5, 29),
    (0, 5, 29),
    (-17, 2.5, 29),
    (47.5, 21, 29),
    (-0.25, 5, -29),
    (-17, 2.5, -29),
    (-47.5, 21, 29),
    (17, 2.5, -29),
    (47.5, 21, -29),
    (-47.5, 21, -29),
]))
fillet.setExpression("Radius", "Params.fillet_radius")
doc.recompute()

fillet2 = body.newObject("PartDesign::Fillet", "Fillet001")
fillet2.Base = (fillet, edges_at(fillet, [
    (-17, 2.5, 44),
    (17, 2.5, 44),
    (-17, 2.5, -44),
    (17, 2.5, -44),
]))
fillet2.setExpression("Radius", "Params.fillet2_radius")

doc.recompute()
